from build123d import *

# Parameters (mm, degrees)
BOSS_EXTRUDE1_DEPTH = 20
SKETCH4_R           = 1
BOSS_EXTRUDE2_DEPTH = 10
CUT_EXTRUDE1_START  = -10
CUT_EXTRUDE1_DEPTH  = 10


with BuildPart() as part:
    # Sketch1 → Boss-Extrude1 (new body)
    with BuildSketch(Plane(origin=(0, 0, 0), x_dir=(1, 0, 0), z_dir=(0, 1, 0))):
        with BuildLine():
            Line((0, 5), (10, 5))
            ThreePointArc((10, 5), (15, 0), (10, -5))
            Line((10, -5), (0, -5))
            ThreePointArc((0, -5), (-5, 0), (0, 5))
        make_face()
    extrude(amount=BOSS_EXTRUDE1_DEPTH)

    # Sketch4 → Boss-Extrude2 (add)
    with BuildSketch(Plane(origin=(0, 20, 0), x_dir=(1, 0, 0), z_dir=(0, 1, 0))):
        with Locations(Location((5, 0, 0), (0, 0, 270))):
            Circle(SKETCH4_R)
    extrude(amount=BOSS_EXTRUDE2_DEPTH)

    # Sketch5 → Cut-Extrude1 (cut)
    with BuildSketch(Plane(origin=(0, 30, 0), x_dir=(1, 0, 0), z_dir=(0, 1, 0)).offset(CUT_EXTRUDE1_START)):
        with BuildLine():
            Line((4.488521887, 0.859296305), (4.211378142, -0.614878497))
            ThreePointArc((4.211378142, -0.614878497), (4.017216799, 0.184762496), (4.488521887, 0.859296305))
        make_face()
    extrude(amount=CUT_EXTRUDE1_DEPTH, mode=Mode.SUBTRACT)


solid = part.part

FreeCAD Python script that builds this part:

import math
import FreeCAD as App
import Part
import Sketcher
from FreeCAD import Vector
Q = App.Units.Quantity

doc = App.newDocument("Part")
params = doc.addObject("Spreadsheet::Sheet", "Params")
for row, (alias, value) in enumerate([
    ("sketch1_radius", "5 mm"),
    ("sketch1_width", "10 mm"),
    ("pad1_length", "20 mm"),
    ("sketch2_diameter", "2 mm"),
    ("pad2_length", "10 mm"),
    ("sketch3_radius", "1 mm"),
    ("sketch3_length", "1.5 mm"),
    ("pocket1_length", "10 mm"),
], start=1):
    params.set(f"A{row}", alias)
    params.set(f"B{row}", "=" + value)
    params.setAlias(f"B{row}", alias)

body = doc.addObject("PartDesign::Body", "Body")

# Sketch on XZ plane
sketch1 = doc.addObject("Sketcher::SketchObject", "Sketch")
body.addObject(sketch1)
sketch1.AttachmentSupport = (doc.XZ_Plane, [""])
sketch1.MapMode = "FlatFace"
sketch1.addGeometry(Part.LineSegment(Vector(10, -5, 0), Vector(0, -5, 0)), False)
sketch1.addGeometry(Part.ArcOfCircle(Part.Circle(Vector(0, 0, 0), Vector(0, 0, 1), 5), math.radians(90), math.radians(270)), False)
sketch1.addGeometry(Part.LineSegment(Vector(0, 5, 0), Vector(10, 5, 0)), False)
sketch1.addGeometry(Part.ArcOfCircle(Part.Circle(Vector(10, 0, 0), Vector(0, 0, 1), 5), math.radians(-90), math.radians(90)), False)
sketch1.addConstraint(Sketcher.Constraint("Tangent", 0, 2, 1, 2))
sketch1.addConstraint(Sketcher.Constraint("Tangent", 1, 1, 2, 1))
sketch1.addConstraint(Sketcher.Constraint("Tangent", 2, 2, 3, 2))
sketch1.addConstraint(Sketcher.Constraint("Tangent", 3, 1, 0, 1))
sketch1.addConstraint(Sketcher.Constraint("Horizontal", 0))
sketch1.addConstraint(Sketcher.Constraint("Horizontal", 2))
sketch1.addConstraint(Sketcher.Constraint("Coincident", 1, 3, -1, 1))
sketch1.addConstraint(Sketcher.Constraint("Radius", 1, Q("5 mm")))
sketch1.addConstraint(Sketcher.Constraint("DistanceX", 0, 2, 0, 1, Q("10 mm")))
sketch1.setExpression("Constraints[7]", "Params.sketch1_radius")
sketch1.setExpression("Constraints[8]", "Params.sketch1_width")
pad1 = doc.addObject("PartDesign::Pad", "Pad")
body.addObject(pad1)
pad1.Profile = sketch1
pad1.setExpression("Length", "Params.pad1_length")
pad1.Reversed = True

# Sketch on XZ plane
sketch2 = doc.addObject("Sketcher::SketchObject", "Sketch001")
body.addObject(sketch2)
sketch2.AttachmentSupport = (doc.XZ_Plane, [""])
sketch2.MapMode = "FlatFace"
sketch2.AttachmentOffset = App.Placement(Vector(0, 0, -20), App.Rotation())
sketch2.addGeometry(Part.Circle(Vector(5, 0, 0), Vector(0, 0, 1), 1), False)
sketch2.addConstraint(Sketcher.Constraint("PointOnObject", 0, 3, -1))
sketch2.addConstraint(Sketcher.Constraint("Diameter", 0, Q("2 mm")))
sketch2.addConstraint(Sketcher.Constraint("DistanceX", -1, 1, 0, 3, Q("5 mm")))
sketch2.setExpression("Constraints[1]", "Params.sketch2_diameter")
pad2 = doc.addObject("PartDesign::Pad", "Pad001")
body.addObject(pad2)
pad2.Profile = sketch2
pad2.setExpression("Length", "Params.pad2_length")
pad2.Reversed = True

# Sketch on XZ plane
sketch3 = doc.addObject("Sketcher::SketchObject", "Sketch002")
body.addObject(sketch3)
sketch3.AttachmentSupport = (doc.XZ_Plane, [""])
sketch3.MapMode = "FlatFace"
sketch3.AttachmentOffset = App.Placement(Vector(0, 0, -20), App.Rotation())
sketch3.addGeometry(Part.LineSegment(Vector(4.2, 0.6, 0), Vector(4.5, -0.9, 0)), False)
sketch3.addGeometry(Part.ArcOfCircle(Part.Circle(Vector(5, 0, 0), Vector(0, 0, 1), 1), math.radians(142), math.radians(239)), False)
sketch3.addConstraint(Sketcher.Constraint("Coincident", 0, 1, 1, 1))
sketch3.addConstraint(Sketcher.Constraint("Coincident", 1, 2, 0, 2))
sketch3.addConstraint(Sketcher.Constraint("PointOnObject", 1, 3, -1))
sketch3.addConstraint(Sketcher.Constraint("Radius", 1, Q("1 mm")))
sketch3.addConstraint(Sketcher.Constraint("DistanceX", -1, 1, 1, 3, Q("5 mm")))
sketch3.addConstraint(Sketcher.Constraint("Distance", 0, Q("1.5 mm")))
sketch3.addConstraint(Sketcher.Constraint("DistanceX", -1, 1, 0, 1, Q("4.211378 mm")))
sketch3.setExpression("Constraints[3]", "Params.sketch3_radius")
sketch3.setExpression("Constraints[5]", "Params.sketch3_length")
pocket1 = doc.addObject("PartDesign::Pocket", "Pocket")
body.addObject(pocket1)
pocket1.Profile = sketch3
pocket1.setExpression("Length", "Params.pocket1_length")

doc.recompute()
